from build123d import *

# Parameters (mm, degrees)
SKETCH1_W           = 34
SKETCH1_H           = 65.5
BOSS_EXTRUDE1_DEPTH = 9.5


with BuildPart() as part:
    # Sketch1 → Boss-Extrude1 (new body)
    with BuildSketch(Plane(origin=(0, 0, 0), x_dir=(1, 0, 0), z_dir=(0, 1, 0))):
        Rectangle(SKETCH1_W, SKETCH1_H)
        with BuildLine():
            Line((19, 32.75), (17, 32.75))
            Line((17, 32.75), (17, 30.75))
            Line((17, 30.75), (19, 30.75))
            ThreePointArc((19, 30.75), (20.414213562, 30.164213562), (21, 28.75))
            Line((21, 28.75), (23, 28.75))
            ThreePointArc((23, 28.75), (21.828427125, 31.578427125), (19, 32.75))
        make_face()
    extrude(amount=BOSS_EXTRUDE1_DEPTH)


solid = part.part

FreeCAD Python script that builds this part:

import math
import FreeCAD as App
import Part
import Sketcher
from FreeCAD import Vector
Q = App.Units.Quantity

doc = App.newDocument("Part")
params = doc.addObject("Spreadsheet::Sheet", "Params")
for row, (alias, value) in enumerate([
    ("sketch1_radius", "2 mm"),
    ("sketch1_radius2", "4 mm"),
    ("sketch1_width", "34 mm"),
    ("sketch1_height", "65.5 mm"),
    ("pad1_length", "9.5 mm"),
], start=1):
    params.set(f"A{row}", alias)
    params.set(f"B{row}", "=" + value)
    params.setAlias(f"B{row}", alias)

body = doc.addObject("PartDesign::Body", "Body")

# Sketch on XZ plane
sketch1 = doc.addObject("Sketcher::SketchObject", "Sketch")
body.addObject(sketch1)
sketch1.AttachmentSupport = (doc.XZ_Plane, [""])
sketch1.MapMode = "FlatFace"
sketch1.addGeometry([
    Part.LineSegment(Vector(-17, -32.75, 0), Vector(-17, 32.75, 0)),  # 0
    Part.LineSegment(Vector(-17, 32.75, 0), Vector(17, 32.75, 0)),  # 1
    Part.LineSegment(Vector(17, 32.75, 0), Vector(17, -30.75, 0)),  # 2
    Part.LineSegment(Vector(17, -30.75, 0), Vector(19, -30.75, 0)),  # 3
    Part.ArcOfCircle(Part.Circle(Vector(19, -28.75, 0), Vector(0, 0, 1), 2), math.radians(-90), math.radians(0)),  # 4
    Part.LineSegment(Vector(21, -28.75, 0), Vector(23, -28.75, 0)),  # 5
    Part.ArcOfCircle(Part.Circle(Vector(19, -28.75, 0), Vector(0, 0, 1), 4), math.radians(-90), math.radians(0)),  # 6
    Part.LineSegment(Vector(19, -32.75, 0), Vector(-17, -32.75, 0)),  # 7
], False)
sketch1.addConstraint([
    Sketcher.Constraint("Coincident", 0, 2, 1, 1),
    Sketcher.Constraint("Coincident", 1, 2, 2, 1),
    Sketcher.Constraint("Coincident", 2, 2, 3, 1),
    Sketcher.Constraint("Tangent", 3, 2, 4, 1),
    Sketcher.Constraint("Coincident", 4, 2, 5, 1),
    Sketcher.Constraint("Coincident", 5, 2, 6, 2),
    Sketcher.Constraint("Tangent", 6, 1, 7, 1),
    Sketcher.Constraint("Coincident", 7, 2, 0, 1),
    Sketcher.Constraint("Vertical", 0),
    Sketcher.Constraint("Horizontal", 1),
    Sketcher.Constraint("Vertical", 2),
    Sketcher.Constraint("Horizontal", 3),
    Sketcher.Constraint("Horizontal", 5),
    Sketcher.Constraint("Horizontal", 7),
    Sketcher.Constraint("Coincident", 6, 3, 4, 3),
    Sketcher.Constraint("Symmetric", 1, 2, 7, 2, -1, 1),
    Sketcher.Constraint("Horizontal", 6, 3, 4, 2),
    Sketcher.Constraint("Equal", 3, 5),
    Sketcher.Constraint("Radius", 4, Q("2 mm")),
    Sketcher.Constraint("Radius", 6, Q("4 mm")),
    Sketcher.Constraint("DistanceX", 1, 1, 1, 2, Q("34 mm")),
    Sketcher.Constraint("DistanceY", 0, 1, 0, 2, Q("65.5 mm")),
])
sketch1.setExpression("Constraints[18]", "Params.sketch1_radius")
sketch1.setExpression("Constraints[19]", "Params.sketch1_radius2")
sketch1.setExpression("Constraints[20]", "Params.sketch1_width")
sketch1.setExpression("Constraints[21]", "Params.sketch1_height")
pad1 = doc.addObject("PartDesign::Pad", "Pad")
body.addObject(pad1)
pad1.Profile = sketch1
pad1.setExpression("Length", "Params.pad1_length")
pad1.Reversed = True

doc.recompute()
